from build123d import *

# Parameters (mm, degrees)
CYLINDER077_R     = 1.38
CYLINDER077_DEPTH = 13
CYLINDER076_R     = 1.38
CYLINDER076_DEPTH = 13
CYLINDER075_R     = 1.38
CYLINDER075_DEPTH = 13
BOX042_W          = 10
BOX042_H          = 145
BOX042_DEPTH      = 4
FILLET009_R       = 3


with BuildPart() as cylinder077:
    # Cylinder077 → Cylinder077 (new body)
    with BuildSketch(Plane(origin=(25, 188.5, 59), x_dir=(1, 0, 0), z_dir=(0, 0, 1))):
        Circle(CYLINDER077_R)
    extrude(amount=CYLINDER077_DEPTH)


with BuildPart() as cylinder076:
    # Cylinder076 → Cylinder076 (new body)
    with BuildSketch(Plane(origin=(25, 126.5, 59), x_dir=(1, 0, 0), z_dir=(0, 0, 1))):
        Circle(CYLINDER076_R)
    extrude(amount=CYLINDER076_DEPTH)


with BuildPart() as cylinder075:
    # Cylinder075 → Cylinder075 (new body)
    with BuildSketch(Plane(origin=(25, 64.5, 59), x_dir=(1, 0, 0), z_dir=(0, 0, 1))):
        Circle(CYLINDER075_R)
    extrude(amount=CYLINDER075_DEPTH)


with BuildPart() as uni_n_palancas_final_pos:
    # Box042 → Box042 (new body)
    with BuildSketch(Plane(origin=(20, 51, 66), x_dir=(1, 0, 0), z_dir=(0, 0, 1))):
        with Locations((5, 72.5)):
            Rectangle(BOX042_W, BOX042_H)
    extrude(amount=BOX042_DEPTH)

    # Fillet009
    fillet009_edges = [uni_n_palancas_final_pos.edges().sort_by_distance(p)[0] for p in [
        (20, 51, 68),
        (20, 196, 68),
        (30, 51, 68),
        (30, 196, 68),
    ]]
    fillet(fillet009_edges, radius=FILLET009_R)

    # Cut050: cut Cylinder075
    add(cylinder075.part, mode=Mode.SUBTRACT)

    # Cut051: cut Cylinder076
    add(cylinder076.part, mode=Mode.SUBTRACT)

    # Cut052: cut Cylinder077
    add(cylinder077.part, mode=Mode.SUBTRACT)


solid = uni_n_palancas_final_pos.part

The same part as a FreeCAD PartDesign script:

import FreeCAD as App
import Part
import Sketcher
from FreeCAD import Vector


def edges_at(feature, points):
    """Names of the edges that pass closest to the given points."""
    edges = feature.Shape.Edges
    near = lambda p: min(range(len(edges)), key=lambda i: edges[i].distToShape(Part.Vertex(*p))[0])
    return sorted({f"Edge{near(p) + 1}" for p in points})


def add_polygon(sketch, points):
    """Adds a closed chain of lines whose ends are joined by coincident constraints."""
    first, n = sketch.GeometryCount, len(points)
    for a, b in zip(points, points[1:] + points[:1]):
        sketch.addGeometry(Part.LineSegment(App.Vector(*a, 0), App.Vector(*b, 0)), False)
    for i in range(n):
        sketch.addConstraint(Sketcher.Constraint("Coincident", first + i, 2, first + (i + 1) % n, 1))

doc = App.newDocument("Part")
body = doc.addObject("PartDesign::Body", "Body")

# Sketch on XY plane
sketch1 = body.newObject("Sketcher::SketchObject", "Sketch")
sketch1.AttachmentSupport = (doc.getObject("XY_Plane"), [""])
sketch1.MapMode = "FlatFace"
sketch1.AttachmentOffset = App.Placement(Vector(0, 0, 59), App.Rotation())
sketch1.addGeometry(Part.Circle(Vector(25, 188.5, 0), Vector(0, 0, 1), 1.38), False)
sketch1.addConstraint([
    Sketcher.Constraint("Diameter", 0, 2.76),
    Sketcher.Constraint("DistanceX", -1, 1, 0, 3, 25.0),
    Sketcher.Constraint("DistanceY", -1, 1, 0, 3, 188.5),
])
pad1 = body.newObject("PartDesign::Pad", "Pad")
pad1.Profile = sketch1
pad1.Length = 13
body2 = doc.addObject("PartDesign::Body", "Body001")

# Sketch on XY plane
sketch2 = body2.newObject("Sketcher::SketchObject", "Sketch001")
sketch2.AttachmentSupport = (doc.getObject("XY_Plane001"), [""])
sketch2.MapMode = "FlatFace"
sketch2.AttachmentOffset = App.Placement(Vector(0, 0, 59), App.Rotation())
sketch2.addGeometry(Part.Circle(Vector(25, 126.5, 0), Vector(0, 0, 1), 1.38), False)
sketch2.addConstraint([
    Sketcher.Constraint("Diameter", 0, 2.76),
    Sketcher.Constraint("DistanceX", -1, 1, 0, 3, 25.0),
    Sketcher.Constraint("DistanceY", -1, 1, 0, 3, 126.5),
])
pad2 = body2.newObject("PartDesign::Pad", "Pad001")
pad2.Profile = sketch2
pad2.Length = 13
body3 = doc.addObject("PartDesign::Body", "Body002")

# Sketch on XY plane
sketch3 = body3.newObject("Sketcher::SketchObject", "Sketch002")
sketch3.AttachmentSupport = (doc.getObject("XY_Plane002"), [""])
sketch3.MapMode = "FlatFace"
sketch3.AttachmentOffset = App.Placement(Vector(0, 0, 59), App.Rotation())
sketch3.addGeometry(Part.Circle(Vector(25, 64.5, 0), Vector(0, 0, 1), 1.38), False)
sketch3.addConstraint([
    Sketcher.Constraint("Diameter", 0, 2.76),
    Sketcher.Constraint("DistanceX", -1, 1, 0, 3, 25.0),
    Sketcher.Constraint("DistanceY", -1, 1, 0, 3, 64.5),
])
pad3 = body3.newObject("PartDesign::Pad", "Pad002")
pad3.Profile = sketch3
pad3.Length = 13
body4 = doc.addObject("PartDesign::Body", "Body003")

# Sketch on XY plane
sketch4 = body4.newObject("Sketcher::SketchObject", "Sketch003")
sketch4.AttachmentSupport = (doc.getObject("XY_Plane003"), [""])
sketch4.MapMode = "FlatFace"
sketch4.AttachmentOffset = App.Placement(Vector(0, 0, 66), App.Rotation())
add_polygon(sketch4, [(20, 196), (20, 51), (30, 51), (30, 196)])  # lines 0-3
sketch4.addConstraint([
    Sketcher.Constraint("Vertical", 0),
    Sketcher.Constraint("Horizontal", 1),
    Sketcher.Constraint("Vertical", 2),
    Sketcher.Constraint("Horizontal", 3),
    Sketcher.Constraint("DistanceX", 1, 1, 1, 2, 10.0),
    Sketcher.Constraint("DistanceY", 0, 2, 0, 1, 145.0),
    Sketcher.Constraint("DistanceX", -1, 1, 0, 2, 20.0),
    Sketcher.Constraint("DistanceY", -1, 1, 0, 2, 51.0),
])
pad4 = body4.newObject("PartDesign::Pad", "Pad003")
pad4.Profile = sketch4
pad4.Length = 4
doc.recompute()

fillet = body4.newObject("PartDesign::Fillet", "Fillet")
fillet.Base = (pad4, edges_at(pad4, [
    (20, 51, 68),
    (20, 196, 68),
    (30, 51, 68),
    (30, 196, 68),
]))
fillet.Radius = 3
doc.recompute()

boolean = body4.newObject("PartDesign::Boolean", "Boolean")
boolean.Type = "Cut"
boolean.addObjects([body3])
doc.recompute()

boolean2 = body4.newObject("PartDesign::Boolean", "Boolean001")
boolean2.Type = "Cut"
boolean2.addObjects([body2])
doc.recompute()

boolean3 = body4.newObject("PartDesign::Boolean", "Boolean002")
boolean3.Type = "Cut"
boolean3.addObjects([body])

doc.recompute()
